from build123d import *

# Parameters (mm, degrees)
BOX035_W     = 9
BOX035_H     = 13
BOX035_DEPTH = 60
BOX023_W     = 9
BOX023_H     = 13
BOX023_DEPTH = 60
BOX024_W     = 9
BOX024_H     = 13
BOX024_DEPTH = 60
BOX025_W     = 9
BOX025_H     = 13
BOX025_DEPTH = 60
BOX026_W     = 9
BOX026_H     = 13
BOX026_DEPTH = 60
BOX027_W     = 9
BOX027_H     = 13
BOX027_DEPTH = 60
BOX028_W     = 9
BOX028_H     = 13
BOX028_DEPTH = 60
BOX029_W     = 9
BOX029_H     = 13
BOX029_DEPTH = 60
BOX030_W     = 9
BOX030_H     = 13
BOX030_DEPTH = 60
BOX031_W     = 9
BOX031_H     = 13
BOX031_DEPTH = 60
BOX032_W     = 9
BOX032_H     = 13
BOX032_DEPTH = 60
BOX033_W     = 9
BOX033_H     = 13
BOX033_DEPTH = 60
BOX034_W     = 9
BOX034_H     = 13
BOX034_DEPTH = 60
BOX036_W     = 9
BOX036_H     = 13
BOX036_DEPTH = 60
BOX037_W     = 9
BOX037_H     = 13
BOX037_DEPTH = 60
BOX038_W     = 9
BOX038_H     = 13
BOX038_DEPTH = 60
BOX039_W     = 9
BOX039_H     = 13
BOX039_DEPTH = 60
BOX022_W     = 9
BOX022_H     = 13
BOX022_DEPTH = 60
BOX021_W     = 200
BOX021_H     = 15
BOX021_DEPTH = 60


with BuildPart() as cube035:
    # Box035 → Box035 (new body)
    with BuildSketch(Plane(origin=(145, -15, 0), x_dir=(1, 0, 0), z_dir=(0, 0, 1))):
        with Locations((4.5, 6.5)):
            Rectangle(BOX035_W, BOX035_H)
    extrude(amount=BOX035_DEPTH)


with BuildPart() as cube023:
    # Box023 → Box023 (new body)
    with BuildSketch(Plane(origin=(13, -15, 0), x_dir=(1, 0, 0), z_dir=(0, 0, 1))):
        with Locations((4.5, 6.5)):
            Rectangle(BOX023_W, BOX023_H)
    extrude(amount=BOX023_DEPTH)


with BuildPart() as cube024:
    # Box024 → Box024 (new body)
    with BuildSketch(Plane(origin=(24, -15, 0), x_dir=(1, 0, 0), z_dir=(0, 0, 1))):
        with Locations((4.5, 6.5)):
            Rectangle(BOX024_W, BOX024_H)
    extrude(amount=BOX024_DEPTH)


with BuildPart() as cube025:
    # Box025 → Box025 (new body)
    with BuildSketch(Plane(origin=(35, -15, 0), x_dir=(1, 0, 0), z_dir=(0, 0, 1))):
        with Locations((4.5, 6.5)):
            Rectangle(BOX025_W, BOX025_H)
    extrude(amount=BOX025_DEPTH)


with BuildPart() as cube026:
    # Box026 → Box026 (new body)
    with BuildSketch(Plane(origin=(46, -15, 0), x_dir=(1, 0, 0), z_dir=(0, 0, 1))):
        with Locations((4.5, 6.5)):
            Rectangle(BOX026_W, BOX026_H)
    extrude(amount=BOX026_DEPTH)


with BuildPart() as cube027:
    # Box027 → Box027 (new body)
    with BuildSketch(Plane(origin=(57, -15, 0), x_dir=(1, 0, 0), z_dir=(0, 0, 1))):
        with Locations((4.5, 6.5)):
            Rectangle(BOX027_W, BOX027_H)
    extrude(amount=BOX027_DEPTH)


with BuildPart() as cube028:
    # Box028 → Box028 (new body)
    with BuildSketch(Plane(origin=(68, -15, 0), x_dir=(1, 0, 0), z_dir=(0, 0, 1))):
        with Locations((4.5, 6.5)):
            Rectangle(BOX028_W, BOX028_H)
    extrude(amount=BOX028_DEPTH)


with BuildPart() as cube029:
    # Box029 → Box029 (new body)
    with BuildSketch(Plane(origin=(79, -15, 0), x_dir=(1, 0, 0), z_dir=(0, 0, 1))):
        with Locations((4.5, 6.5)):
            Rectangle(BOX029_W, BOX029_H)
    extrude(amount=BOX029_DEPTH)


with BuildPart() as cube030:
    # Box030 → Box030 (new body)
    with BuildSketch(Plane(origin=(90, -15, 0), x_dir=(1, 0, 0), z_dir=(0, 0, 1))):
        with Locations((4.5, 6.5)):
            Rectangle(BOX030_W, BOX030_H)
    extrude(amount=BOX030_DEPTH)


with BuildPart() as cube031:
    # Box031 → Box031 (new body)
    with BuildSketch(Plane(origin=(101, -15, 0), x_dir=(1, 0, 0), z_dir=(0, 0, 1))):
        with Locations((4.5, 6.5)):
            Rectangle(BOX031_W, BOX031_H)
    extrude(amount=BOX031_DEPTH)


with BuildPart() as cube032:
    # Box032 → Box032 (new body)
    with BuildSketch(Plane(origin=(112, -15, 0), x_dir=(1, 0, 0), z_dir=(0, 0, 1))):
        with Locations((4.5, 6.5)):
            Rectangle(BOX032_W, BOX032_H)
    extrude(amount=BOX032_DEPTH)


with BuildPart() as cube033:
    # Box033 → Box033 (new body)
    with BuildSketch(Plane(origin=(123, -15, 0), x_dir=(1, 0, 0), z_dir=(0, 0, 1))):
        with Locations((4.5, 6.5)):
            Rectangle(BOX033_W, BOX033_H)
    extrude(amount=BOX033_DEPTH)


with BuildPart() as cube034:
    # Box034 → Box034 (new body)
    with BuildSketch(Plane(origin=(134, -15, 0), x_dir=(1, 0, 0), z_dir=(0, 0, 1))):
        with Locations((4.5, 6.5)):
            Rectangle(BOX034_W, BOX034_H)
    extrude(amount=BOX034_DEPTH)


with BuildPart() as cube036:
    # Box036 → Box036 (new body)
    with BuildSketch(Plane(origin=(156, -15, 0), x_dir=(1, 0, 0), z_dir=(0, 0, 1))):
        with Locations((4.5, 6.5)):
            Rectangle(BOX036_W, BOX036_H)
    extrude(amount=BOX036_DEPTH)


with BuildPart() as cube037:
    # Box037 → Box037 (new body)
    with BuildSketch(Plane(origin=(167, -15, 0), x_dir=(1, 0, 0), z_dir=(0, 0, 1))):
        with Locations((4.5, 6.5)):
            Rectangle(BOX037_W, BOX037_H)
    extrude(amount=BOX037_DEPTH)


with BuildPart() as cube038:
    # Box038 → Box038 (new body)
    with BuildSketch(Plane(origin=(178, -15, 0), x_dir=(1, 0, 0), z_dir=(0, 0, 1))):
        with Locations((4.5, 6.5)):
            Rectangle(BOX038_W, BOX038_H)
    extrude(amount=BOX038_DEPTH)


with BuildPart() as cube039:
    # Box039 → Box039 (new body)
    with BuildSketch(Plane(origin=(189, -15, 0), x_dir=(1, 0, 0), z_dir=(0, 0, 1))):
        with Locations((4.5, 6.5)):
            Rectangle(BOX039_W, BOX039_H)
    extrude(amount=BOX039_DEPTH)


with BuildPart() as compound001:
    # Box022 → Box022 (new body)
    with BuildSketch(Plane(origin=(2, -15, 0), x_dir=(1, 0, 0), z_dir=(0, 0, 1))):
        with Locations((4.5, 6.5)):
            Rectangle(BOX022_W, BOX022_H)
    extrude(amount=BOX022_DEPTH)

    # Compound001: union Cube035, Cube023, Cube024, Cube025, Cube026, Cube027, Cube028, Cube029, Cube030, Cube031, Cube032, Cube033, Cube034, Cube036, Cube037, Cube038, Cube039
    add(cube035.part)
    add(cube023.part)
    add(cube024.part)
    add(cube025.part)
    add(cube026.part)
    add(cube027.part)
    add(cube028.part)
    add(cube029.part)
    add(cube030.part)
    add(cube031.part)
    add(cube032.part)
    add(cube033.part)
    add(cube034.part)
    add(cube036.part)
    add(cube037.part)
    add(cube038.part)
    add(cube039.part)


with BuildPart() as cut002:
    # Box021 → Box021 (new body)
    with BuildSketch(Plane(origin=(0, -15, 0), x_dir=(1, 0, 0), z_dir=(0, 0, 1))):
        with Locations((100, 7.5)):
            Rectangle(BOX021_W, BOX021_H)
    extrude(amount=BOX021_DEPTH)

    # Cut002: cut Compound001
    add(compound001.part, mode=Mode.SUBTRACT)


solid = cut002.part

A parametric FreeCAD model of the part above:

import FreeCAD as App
import Part
import Sketcher

V = App.Vector


def add_polygon(sketch, points):
    """Adds a closed chain of lines whose ends are joined by coincident constraints."""
    first, n = sketch.GeometryCount, len(points)
    for a, b in zip(points, points[1:] + points[:1]):
        sketch.addGeometry(Part.LineSegment(App.Vector(*a, 0), App.Vector(*b, 0)), False)
    for i in range(n):
        sketch.addConstraint(Sketcher.Constraint("Coincident", first + i, 2, first + (i + 1) % n, 1))

doc = App.newDocument("Part")
body = doc.addObject("PartDesign::Body", "Body")

sketch1 = body.newObject("Sketcher::SketchObject", "Sketch")
sketch1.AttachmentSupport = (doc.getObject("XY_Plane"), [""])
sketch1.MapMode = "FlatFace"
add_polygon(sketch1, [(145, -2), (145, -15), (154, -15), (154, -2)])
sketch1.addConstraint(Sketcher.Constraint("Vertical", 0))
sketch1.addConstraint(Sketcher.Constraint("Horizontal", 1))
sketch1.addConstraint(Sketcher.Constraint("Vertical", 2))
sketch1.addConstraint(Sketcher.Constraint("Horizontal", 3))
sketch1.addConstraint(Sketcher.Constraint("DistanceX", 1, 1, 1, 2, 9.0))
sketch1.addConstraint(Sketcher.Constraint("DistanceY", 0, 2, 0, 1, 13.0))
sketch1.addConstraint(Sketcher.Constraint("DistanceX", -1, 1, 0, 2, 145.0))
sketch1.addConstraint(Sketcher.Constraint("DistanceY", 0, 2, -1, 1, 15.0))
pad1 = body.newObject("PartDesign::Pad", "Pad")
pad1.Profile = sketch1
pad1.Length = 60
body2 = doc.addObject("PartDesign::Body", "Body001")

sketch2 = body2.newObject("Sketcher::SketchObject", "Sketch001")
sketch2.AttachmentSupport = (doc.getObject("XY_Plane001"), [""])
sketch2.MapMode = "FlatFace"
add_polygon(sketch2, [(13, -2), (13, -15), (22, -15), (22, -2)])
sketch2.addConstraint(Sketcher.Constraint("Vertical", 0))
sketch2.addConstraint(Sketcher.Constraint("Horizontal", 1))
sketch2.addConstraint(Sketcher.Constraint("Vertical", 2))
sketch2.addConstraint(Sketcher.Constraint("Horizontal", 3))
sketch2.addConstraint(Sketcher.Constraint("DistanceX", 1, 1, 1, 2, 9.0))
sketch2.addConstraint(Sketcher.Constraint("DistanceY", 0, 2, 0, 1, 13.0))
sketch2.addConstraint(Sketcher.Constraint("DistanceX", -1, 1, 0, 2, 13.0))
sketch2.addConstraint(Sketcher.Constraint("DistanceY", 0, 2, -1, 1, 15.0))
pad2 = body2.newObject("PartDesign::Pad", "Pad001")
pad2.Profile = sketch2
pad2.Length = 60
body3 = doc.addObject("PartDesign::Body", "Body002")

sketch3 = body3.newObject("Sketcher::SketchObject", "Sketch002")
sketch3.AttachmentSupport = (doc.getObject("XY_Plane002"), [""])
sketch3.MapMode = "FlatFace"
add_polygon(sketch3, [(24, -2), (24, -15), (33, -15), (33, -2)])
sketch3.addConstraint(Sketcher.Constraint("Vertical", 0))
sketch3.addConstraint(Sketcher.Constraint("Horizontal", 1))
sketch3.addConstraint(Sketcher.Constraint("Vertical", 2))
sketch3.addConstraint(Sketcher.Constraint("Horizontal", 3))
sketch3.addConstraint(Sketcher.Constraint("DistanceX", 1, 1, 1, 2, 9.0))
sketch3.addConstraint(Sketcher.Constraint("DistanceY", 0, 2, 0, 1, 13.0))
sketch3.addConstraint(Sketcher.Constraint("DistanceX", -1, 1, 0, 2, 24.0))
sketch3.addConstraint(Sketcher.Constraint("DistanceY", 0, 2, -1, 1, 15.0))
pad3 = body3.newObject("PartDesign::Pad", "Pad002")
pad3.Profile = sketch3
pad3.Length = 60
body4 = doc.addObject("PartDesign::Body", "Body003")

sketch4 = body4.newObject("Sketcher::SketchObject", "Sketch003")
sketch4.AttachmentSupport = (doc.getObject("XY_Plane003"), [""])
sketch4.MapMode = "FlatFace"
add_polygon(sketch4, [(35, -2), (35, -15), (44, -15), (44, -2)])
sketch4.addConstraint(Sketcher.Constraint("Vertical", 0))
sketch4.addConstraint(Sketcher.Constraint("Horizontal", 1))
sketch4.addConstraint(Sketcher.Constraint("Vertical", 2))
sketch4.addConstraint(Sketcher.Constraint("Horizontal", 3))
sketch4.addConstraint(Sketcher.Constraint("DistanceX", 1, 1, 1, 2, 9.0))
sketch4.addConstraint(Sketcher.Constraint("DistanceY", 0, 2, 0, 1, 13.0))
sketch4.addConstraint(Sketcher.Constraint("DistanceX", -1, 1, 0, 2, 35.0))
sketch4.addConstraint(Sketcher.Constraint("DistanceY", 0, 2, -1, 1, 15.0))
pad4 = body4.newObject("PartDesign::Pad", "Pad003")
pad4.Profile = sketch4
pad4.Length = 60
body5 = doc.addObject("PartDesign::Body", "Body004")

sketch5 = body5.newObject("Sketcher::SketchObject", "Sketch004")
sketch5.AttachmentSupport = (doc.getObject("XY_Plane004"), [""])
sketch5.MapMode = "FlatFace"
add_polygon(sketch5, [(46, -2), (46, -15), (55, -15), (55, -2)])
sketch5.addConstraint(Sketcher.Constraint("Vertical", 0))
sketch5.addConstraint(Sketcher.Constraint("Horizontal", 1))
sketch5.addConstraint(Sketcher.Constraint("Vertical", 2))
sketch5.addConstraint(Sketcher.Constraint("Horizontal", 3))
sketch5.addConstraint(Sketcher.Constraint("DistanceX", 1, 1, 1, 2, 9.0))
sketch5.addConstraint(Sketcher.Constraint("DistanceY", 0, 2, 0, 1, 13.0))
sketch5.addConstraint(Sketcher.Constraint("DistanceX", -1, 1, 0, 2, 46.0))
sketch5.addConstraint(Sketcher.Constraint("DistanceY", 0, 2, -1, 1, 15.0))
pad5 = body5.newObject("PartDesign::Pad", "Pad004")
pad5.Profile = sketch5
pad5.Length = 60
body6 = doc.addObject("PartDesign::Body", "Body005")

sketch6 = body6.newObject("Sketcher::SketchObject", "Sketch005")
sketch6.AttachmentSupport = (doc.getObject("XY_Plane005"), [""])
sketch6.MapMode = "FlatFace"
add_polygon(sketch6, [(57, -2), (57, -15), (66, -15), (66, -2)])
sketch6.addConstraint(Sketcher.Constraint("Vertical", 0))
sketch6.addConstraint(Sketcher.Constraint("Horizontal", 1))
sketch6.addConstraint(Sketcher.Constraint("Vertical", 2))
sketch6.addConstraint(Sketcher.Constraint("Horizontal", 3))
sketch6.addConstraint(Sketcher.Constraint("DistanceX", 1, 1, 1, 2, 9.0))
sketch6.addConstraint(Sketcher.Constraint("DistanceY", 0, 2, 0, 1, 13.0))
sketch6.addConstraint(Sketcher.Constraint("DistanceX", -1, 1, 0, 2, 57.0))
sketch6.addConstraint(Sketcher.Constraint("DistanceY", 0, 2, -1, 1, 15.0))
pad6 = body6.newObject("PartDesign::Pad", "Pad005")
pad6.Profile = sketch6
pad6.Length = 60
body7 = doc.addObject("PartDesign::Body", "Body006")

sketch7 = body7.newObject("Sketcher::SketchObject", "Sketch006")
sketch7.AttachmentSupport = (doc.getObject("XY_Plane006"), [""])
sketch7.MapMode = "FlatFace"
add_polygon(sketch7, [(68, -2), (68, -15), (77, -15), (77, -2)])
sketch7.addConstraint(Sketcher.Constraint("Vertical", 0))
sketch7.addConstraint(Sketcher.Constraint("Horizontal", 1))
sketch7.addConstraint(Sketcher.Constraint("Vertical", 2))
sketch7.addConstraint(Sketcher.Constraint("Horizontal", 3))
sketch7.addConstraint(Sketcher.Constraint("DistanceX", 1, 1, 1, 2, 9.0))
sketch7.addConstraint(Sketcher.Constraint("DistanceY", 0, 2, 0, 1, 13.0))
sketch7.addConstraint(Sketcher.Constraint("DistanceX", -1, 1, 0, 2, 68.0))
sketch7.addConstraint(Sketcher.Constraint("DistanceY", 0, 2, -1, 1, 15.0))
pad7 = body7.newObject("PartDesign::Pad", "Pad006")
pad7.Profile = sketch7
pad7.Length = 60
body8 = doc.addObject("PartDesign::Body", "Body007")

sketch8 = body8.newObject("Sketcher::SketchObject", "Sketch007")
sketch8.AttachmentSupport = (doc.getObject("XY_Plane007"), [""])
sketch8.MapMode = "FlatFace"
add_polygon(sketch8, [(79, -2), (79, -15), (88, -15), (88, -2)])
sketch8.addConstraint(Sketcher.Constraint("Vertical", 0))
sketch8.addConstraint(Sketcher.Constraint("Horizontal", 1))
sketch8.addConstraint(Sketcher.Constraint("Vertical", 2))
sketch8.addConstraint(Sketcher.Constraint("Horizontal", 3))
sketch8.addConstraint(Sketcher.Constraint("DistanceX", 1, 1, 1, 2, 9.0))
sketch8.addConstraint(Sketcher.Constraint("DistanceY", 0, 2, 0, 1, 13.0))
sketch8.addConstraint(Sketcher.Constraint("DistanceX", -1, 1, 0, 2, 79.0))
sketch8.addConstraint(Sketcher.Constraint("DistanceY", 0, 2, -1, 1, 15.0))
pad8 = body8.newObject("PartDesign::Pad", "Pad007")
pad8.Profile = sketch8
pad8.Length = 60
body9 = doc.addObject("PartDesign::Body", "Body008")

sketch9 = body9.newObject("Sketcher::SketchObject", "Sketch008")
sketch9.AttachmentSupport = (doc.getObject("XY_Plane008"), [""])
sketch9.MapMode = "FlatFace"
add_polygon(sketch9, [(90, -2), (90, -15), (99, -15), (99, -2)])
sketch9.addConstraint(Sketcher.Constraint("Vertical", 0))
sketch9.addConstraint(Sketcher.Constraint("Horizontal", 1))
sketch9.addConstraint(Sketcher.Constraint("Vertical", 2))
sketch9.addConstraint(Sketcher.Constraint("Horizontal", 3))
sketch9.addConstraint(Sketcher.Constraint("DistanceX", 1, 1, 1, 2, 9.0))
sketch9.addConstraint(Sketcher.Constraint("DistanceY", 0, 2, 0, 1, 13.0))
sketch9.addConstraint(Sketcher.Constraint("DistanceX", -1, 1, 0, 2, 90.0))
sketch9.addConstraint(Sketcher.Constraint("DistanceY", 0, 2, -1, 1, 15.0))
pad9 = body9.newObject("PartDesign::Pad", "Pad008")
pad9.Profile = sketch9
pad9.Length = 60
body10 = doc.addObject("PartDesign::Body", "Body009")

sketch10 = body10.newObject("Sketcher::SketchObject", "Sketch009")
sketch10.AttachmentSupport = (doc.getObject("XY_Plane009"), [""])
sketch10.MapMode = "FlatFace"
add_polygon(sketch10, [(101, -2), (101, -15), (110, -15), (110, -2)])
sketch10.addConstraint(Sketcher.Constraint("Vertical", 0))
sketch10.addConstraint(Sketcher.Constraint("Horizontal", 1))
sketch10.addConstraint(Sketcher.Constraint("Vertical", 2))
sketch10.addConstraint(Sketcher.Constraint("Horizontal", 3))
sketch10.addConstraint(Sketcher.Constraint("DistanceX", 1, 1, 1, 2, 9.0))
sketch10.addConstraint(Sketcher.Constraint("DistanceY", 0, 2, 0, 1, 13.0))
sketch10.addConstraint(Sketcher.Constraint("DistanceX", -1, 1, 0, 2, 101.0))
sketch10.addConstraint(Sketcher.Constraint("DistanceY", 0, 2, -1, 1, 15.0))
pad10 = body10.newObject("PartDesign::Pad", "Pad009")
pad10.Profile = sketch10
pad10.Length = 60
body11 = doc.addObject("PartDesign::Body", "Body010")

sketch11 = body11.newObject("Sketcher::SketchObject", "Sketch010")
sketch11.AttachmentSupport = (doc.getObject("XY_Plane010"), [""])
sketch11.MapMode = "FlatFace"
add_polygon(sketch11, [(112, -2), (112, -15), (121, -15), (121, -2)])
sketch11.addConstraint(Sketcher.Constraint("Vertical", 0))
sketch11.addConstraint(Sketcher.Constraint("Horizontal", 1))
sketch11.addConstraint(Sketcher.Constraint("Vertical", 2))
sketch11.addConstraint(Sketcher.Constraint("Horizontal", 3))
sketch11.addConstraint(Sketcher.Constraint("DistanceX", 1, 1, 1, 2, 9.0))
sketch11.addConstraint(Sketcher.Constraint("DistanceY", 0, 2, 0, 1, 13.0))
sketch11.addConstraint(Sketcher.Constraint("DistanceX", -1, 1, 0, 2, 112.0))
sketch11.addConstraint(Sketcher.Constraint("DistanceY", 0, 2, -1, 1, 15.0))
pad11 = body11.newObject("PartDesign::Pad", "Pad010")
pad11.Profile = sketch11
pad11.Length = 60
body12 = doc.addObject("PartDesign::Body", "Body011")

sketch12 = body12.newObject("Sketcher::SketchObject", "Sketch011")
sketch12.AttachmentSupport = (doc.getObject("XY_Plane011"), [""])
sketch12.MapMode = "FlatFace"
add_polygon(sketch12, [(123, -2), (123, -15), (132, -15), (132, -2)])
sketch12.addConstraint(Sketcher.Constraint("Vertical", 0))
sketch12.addConstraint(Sketcher.Constraint("Horizontal", 1))
sketch12.addConstraint(Sketcher.Constraint("Vertical", 2))
sketch12.addConstraint(Sketcher.Constraint("Horizontal", 3))
sketch12.addConstraint(Sketcher.Constraint("DistanceX", 1, 1, 1, 2, 9.0))
sketch12.addConstraint(Sketcher.Constraint("DistanceY", 0, 2, 0, 1, 13.0))
sketch12.addConstraint(Sketcher.Constraint("DistanceX", -1, 1, 0, 2, 123.0))
sketch12.addConstraint(Sketcher.Constraint("DistanceY", 0, 2, -1, 1, 15.0))
pad12 = body12.newObject("PartDesign::Pad", "Pad011")
pad12.Profile = sketch12
pad12.Length = 60
body13 = doc.addObject("PartDesign::Body", "Body012")

sketch13 = body13.newObject("Sketcher::SketchObject", "Sketch012")
sketch13.AttachmentSupport = (doc.getObject("XY_Plane012"), [""])
sketch13.MapMode = "FlatFace"
add_polygon(sketch13, [(134, -2), (134, -15), (143, -15), (143, -2)])
sketch13.addConstraint(Sketcher.Constraint("Vertical", 0))
sketch13.addConstraint(Sketcher.Constraint("Horizontal", 1))
sketch13.addConstraint(Sketcher.Constraint("Vertical", 2))
sketch13.addConstraint(Sketcher.Constraint("Horizontal", 3))
sketch13.addConstraint(Sketcher.Constraint("DistanceX", 1, 1, 1, 2, 9.0))
sketch13.addConstraint(Sketcher.Constraint("DistanceY", 0, 2, 0, 1, 13.0))
sketch13.addConstraint(Sketcher.Constraint("DistanceX", -1, 1, 0, 2, 134.0))
sketch13.addConstraint(Sketcher.Constraint("DistanceY", 0, 2, -1, 1, 15.0))
pad13 = body13.newObject("PartDesign::Pad", "Pad012")
pad13.Profile = sketch13
pad13.Length = 60
body14 = doc.addObject("PartDesign::Body", "Body013")

sketch14 = body14.newObject("Sketcher::SketchObject", "Sketch013")
sketch14.AttachmentSupport = (doc.getObject("XY_Plane013"), [""])
sketch14.MapMode = "FlatFace"
add_polygon(sketch14, [(156, -2), (156, -15), (165, -15), (165, -2)])
sketch14.addConstraint(Sketcher.Constraint("Vertical", 0))
sketch14.addConstraint(Sketcher.Constraint("Horizontal", 1))
sketch14.addConstraint(Sketcher.Constraint("Vertical", 2))
sketch14.addConstraint(Sketcher.Constraint("Horizontal", 3))
sketch14.addConstraint(Sketcher.Constraint("DistanceX", 1, 1, 1, 2, 9.0))
sketch14.addConstraint(Sketcher.Constraint("DistanceY", 0, 2, 0, 1, 13.0))
sketch14.addConstraint(Sketcher.Constraint("DistanceX", -1, 1, 0, 2, 156.0))
sketch14.addConstraint(Sketcher.Constraint("DistanceY", 0, 2, -1, 1, 15.0))
pad14 = body14.newObject("PartDesign::Pad", "Pad013")
pad14.Profile = sketch14
pad14.Length = 60
body15 = doc.addObject("PartDesign::Body", "Body014")

sketch15 = body15.newObject("Sketcher::SketchObject", "Sketch014")
sketch15.AttachmentSupport = (doc.getObject("XY_Plane014"), [""])
sketch15.MapMode = "FlatFace"
add_polygon(sketch15, [(167, -2), (167, -15), (176, -15), (176, -2)])
sketch15.addConstraint(Sketcher.Constraint("Vertical", 0))
sketch15.addConstraint(Sketcher.Constraint("Horizontal", 1))
sketch15.addConstraint(Sketcher.Constraint("Vertical", 2))
sketch15.addConstraint(Sketcher.Constraint("Horizontal", 3))
sketch15.addConstraint(Sketcher.Constraint("DistanceX", 1, 1, 1, 2, 9.0))
sketch15.addConstraint(Sketcher.Constraint("DistanceY", 0, 2, 0, 1, 13.0))
sketch15.addConstraint(Sketcher.Constraint("DistanceX", -1, 1, 0, 2, 167.0))
sketch15.addConstraint(Sketcher.Constraint("DistanceY", 0, 2, -1, 1, 15.0))
pad15 = body15.newObject("PartDesign::Pad", "Pad014")
pad15.Profile = sketch15
pad15.Length = 60
body16 = doc.addObject("PartDesign::Body", "Body015")

sketch16 = body16.newObject("Sketcher::SketchObject", "Sketch015")
sketch16.AttachmentSupport = (doc.getObject("XY_Plane015"), [""])
sketch16.MapMode = "FlatFace"
add_polygon(sketch16, [(178, -2), (178, -15), (187, -15), (187, -2)])
sketch16.addConstraint(Sketcher.Constraint("Vertical", 0))
sketch16.addConstraint(Sketcher.Constraint("Horizontal", 1))
sketch16.addConstraint(Sketcher.Constraint("Vertical", 2))
sketch16.addConstraint(Sketcher.Constraint("Horizontal", 3))
sketch16.addConstraint(Sketcher.Constraint("DistanceX", 1, 1, 1, 2, 9.0))
sketch16.addConstraint(Sketcher.Constraint("DistanceY", 0, 2, 0, 1, 13.0))
sketch16.addConstraint(Sketcher.Constraint("DistanceX", -1, 1, 0, 2, 178.0))
sketch16.addConstraint(Sketcher.Constraint("DistanceY", 0, 2, -1, 1, 15.0))
pad16 = body16.newObject("PartDesign::Pad", "Pad015")
pad16.Profile = sketch16
pad16.Length = 60
body17 = doc.addObject("PartDesign::Body", "Body016")

sketch17 = body17.newObject("Sketcher::SketchObject", "Sketch016")
sketch17.AttachmentSupport = (doc.getObject("XY_Plane016"), [""])
sketch17.MapMode = "FlatFace"
add_polygon(sketch17, [(189, -2), (189, -15), (198, -15), (198, -2)])
sketch17.addConstraint(Sketcher.Constraint("Vertical", 0))
sketch17.addConstraint(Sketcher.Constraint("Horizontal", 1))
sketch17.addConstraint(Sketcher.Constraint("Vertical", 2))
sketch17.addConstraint(Sketcher.Constraint("Horizontal", 3))
sketch17.addConstraint(Sketcher.Constraint("DistanceX", 1, 1, 1, 2, 9.0))
sketch17.addConstraint(Sketcher.Constraint("DistanceY", 0, 2, 0, 1, 13.0))
sketch17.addConstraint(Sketcher.Constraint("DistanceX", -1, 1, 0, 2, 189.0))
sketch17.addConstraint(Sketcher.Constraint("DistanceY", 0, 2, -1, 1, 15.0))
pad17 = body17.newObject("PartDesign::Pad", "Pad016")
pad17.Profile = sketch17
pad17.Length = 60
body18 = doc.addObject("PartDesign::Body", "Body017")
body18.AllowCompound = True

sketch18 = body18.newObject("Sketcher::SketchObject", "Sketch017")
sketch18.AttachmentSupport = (doc.getObject("XY_Plane017"), [""])
sketch18.MapMode = "FlatFace"
add_polygon(sketch18, [(2, -2), (2, -15), (11, -15), (11, -2)])
sketch18.addConstraint(Sketcher.Constraint("Vertical", 0))
sketch18.addConstraint(Sketcher.Constraint("Horizontal", 1))
sketch18.addConstraint(Sketcher.Constraint("Vertical", 2))
sketch18.addConstraint(Sketcher.Constraint("Horizontal", 3))
sketch18.addConstraint(Sketcher.Constraint("DistanceX", 1, 1, 1, 2, 9.0))
sketch18.addConstraint(Sketcher.Constraint("DistanceY", 0, 2, 0, 1, 13.0))
sketch18.addConstraint(Sketcher.Constraint("DistanceX", -1, 1, 0, 2, 2.0))
sketch18.addConstraint(Sketcher.Constraint("DistanceY", 0, 2, -1, 1, 15.0))
pad18 = body18.newObject("PartDesign::Pad", "Pad017")
pad18.Profile = sketch18
pad18.Length = 60
doc.recompute()

boolean = body18.newObject("PartDesign::Boolean", "Boolean")
boolean.Type = "Fuse"
boolean.addObjects([body])
doc.recompute()

boolean2 = body18.newObject("PartDesign::Boolean", "Boolean001")
boolean2.Type = "Fuse"
boolean2.addObjects([body2])
doc.recompute()

boolean3 = body18.newObject("PartDesign::Boolean", "Boolean002")
boolean3.Type = "Fuse"
boolean3.addObjects([body3])
doc.recompute()

boolean4 = body18.newObject("PartDesign::Boolean", "Boolean003")
boolean4.Type = "Fuse"
boolean4.addObjects([body4])
doc.recompute()

boolean5 = body18.newObject("PartDesign::Boolean", "Boolean004")
boolean5.Type = "Fuse"
boolean5.addObjects([body5])
doc.recompute()

boolean6 = body18.newObject("PartDesign::Boolean", "Boolean005")
boolean6.Type = "Fuse"
boolean6.addObjects([body6])
doc.recompute()

boolean7 = body18.newObject("PartDesign::Boolean", "Boolean006")
boolean7.Type = "Fuse"
boolean7.addObjects([body7])
doc.recompute()

boolean8 = body18.newObject("PartDesign::Boolean", "Boolean007")
boolean8.Type = "Fuse"
boolean8.addObjects([body8])
doc.recompute()

boolean9 = body18.newObject("PartDesign::Boolean", "Boolean008")
boolean9.Type = "Fuse"
boolean9.addObjects([body9])
doc.recompute()

boolean10 = body18.newObject("PartDesign::Boolean", "Boolean009")
boolean10.Type = "Fuse"
boolean10.addObjects([body10])
doc.recompute()

boolean11 = body18.newObject("PartDesign::Boolean", "Boolean010")
boolean11.Type = "Fuse"
boolean11.addObjects([body11])
doc.recompute()

boolean12 = body18.newObject("PartDesign::Boolean", "Boolean011")
boolean12.Type = "Fuse"
boolean12.addObjects([body12])
doc.recompute()

boolean13 = body18.newObject("PartDesign::Boolean", "Boolean012")
boolean13.Type = "Fuse"
boolean13.addObjects([body13])
doc.recompute()

boolean14 = body18.newObject("PartDesign::Boolean", "Boolean013")
boolean14.Type = "Fuse"
boolean14.addObjects([body14])
doc.recompute()

boolean15 = body18.newObject("PartDesign::Boolean", "Boolean014")
boolean15.Type = "Fuse"
boolean15.addObjects([body15])
doc.recompute()

boolean16 = body18.newObject("PartDesign::Boolean", "Boolean015")
boolean16.Type = "Fuse"
boolean16.addObjects([body16])
doc.recompute()

boolean17 = body18.newObject("PartDesign::Boolean", "Boolean016")
boolean17.Type = "Fuse"
boolean17.addObjects([body17])
body19 = doc.addObject("PartDesign::Body", "Body018")

sketch19 = body19.newObject("Sketcher::SketchObject", "Sketch018")
sketch19.AttachmentSupport = (doc.getObject("XY_Plane018"), [""])
sketch19.MapMode = "FlatFace"
add_polygon(sketch19, [(0, 0), (0, -15), (200, -15), (200, 0)])
sketch19.addConstraint(Sketcher.Constraint("Vertical", 0))
sketch19.addConstraint(Sketcher.Constraint("Horizontal", 1))
sketch19.addConstraint(Sketcher.Constraint("Vertical", 2))
sketch19.addConstraint(Sketcher.Constraint("Horizontal", 3))
sketch19.addConstraint(Sketcher.Constraint("Coincident", 3, 2, -1, 1))
sketch19.addConstraint(Sketcher.Constraint("DistanceX", 1, 1, 1, 2, 200.0))
sketch19.addConstraint(Sketcher.Constraint("DistanceY", 0, 2, 0, 1, 15.0))
pad19 = body19.newObject("PartDesign::Pad", "Pad018")
pad19.Profile = sketch19
pad19.Length = 60
doc.recompute()

boolean18 = body19.newObject("PartDesign::Boolean", "Boolean017")
boolean18.Type = "Cut"
boolean18.addObjects([body18])

doc.recompute()
